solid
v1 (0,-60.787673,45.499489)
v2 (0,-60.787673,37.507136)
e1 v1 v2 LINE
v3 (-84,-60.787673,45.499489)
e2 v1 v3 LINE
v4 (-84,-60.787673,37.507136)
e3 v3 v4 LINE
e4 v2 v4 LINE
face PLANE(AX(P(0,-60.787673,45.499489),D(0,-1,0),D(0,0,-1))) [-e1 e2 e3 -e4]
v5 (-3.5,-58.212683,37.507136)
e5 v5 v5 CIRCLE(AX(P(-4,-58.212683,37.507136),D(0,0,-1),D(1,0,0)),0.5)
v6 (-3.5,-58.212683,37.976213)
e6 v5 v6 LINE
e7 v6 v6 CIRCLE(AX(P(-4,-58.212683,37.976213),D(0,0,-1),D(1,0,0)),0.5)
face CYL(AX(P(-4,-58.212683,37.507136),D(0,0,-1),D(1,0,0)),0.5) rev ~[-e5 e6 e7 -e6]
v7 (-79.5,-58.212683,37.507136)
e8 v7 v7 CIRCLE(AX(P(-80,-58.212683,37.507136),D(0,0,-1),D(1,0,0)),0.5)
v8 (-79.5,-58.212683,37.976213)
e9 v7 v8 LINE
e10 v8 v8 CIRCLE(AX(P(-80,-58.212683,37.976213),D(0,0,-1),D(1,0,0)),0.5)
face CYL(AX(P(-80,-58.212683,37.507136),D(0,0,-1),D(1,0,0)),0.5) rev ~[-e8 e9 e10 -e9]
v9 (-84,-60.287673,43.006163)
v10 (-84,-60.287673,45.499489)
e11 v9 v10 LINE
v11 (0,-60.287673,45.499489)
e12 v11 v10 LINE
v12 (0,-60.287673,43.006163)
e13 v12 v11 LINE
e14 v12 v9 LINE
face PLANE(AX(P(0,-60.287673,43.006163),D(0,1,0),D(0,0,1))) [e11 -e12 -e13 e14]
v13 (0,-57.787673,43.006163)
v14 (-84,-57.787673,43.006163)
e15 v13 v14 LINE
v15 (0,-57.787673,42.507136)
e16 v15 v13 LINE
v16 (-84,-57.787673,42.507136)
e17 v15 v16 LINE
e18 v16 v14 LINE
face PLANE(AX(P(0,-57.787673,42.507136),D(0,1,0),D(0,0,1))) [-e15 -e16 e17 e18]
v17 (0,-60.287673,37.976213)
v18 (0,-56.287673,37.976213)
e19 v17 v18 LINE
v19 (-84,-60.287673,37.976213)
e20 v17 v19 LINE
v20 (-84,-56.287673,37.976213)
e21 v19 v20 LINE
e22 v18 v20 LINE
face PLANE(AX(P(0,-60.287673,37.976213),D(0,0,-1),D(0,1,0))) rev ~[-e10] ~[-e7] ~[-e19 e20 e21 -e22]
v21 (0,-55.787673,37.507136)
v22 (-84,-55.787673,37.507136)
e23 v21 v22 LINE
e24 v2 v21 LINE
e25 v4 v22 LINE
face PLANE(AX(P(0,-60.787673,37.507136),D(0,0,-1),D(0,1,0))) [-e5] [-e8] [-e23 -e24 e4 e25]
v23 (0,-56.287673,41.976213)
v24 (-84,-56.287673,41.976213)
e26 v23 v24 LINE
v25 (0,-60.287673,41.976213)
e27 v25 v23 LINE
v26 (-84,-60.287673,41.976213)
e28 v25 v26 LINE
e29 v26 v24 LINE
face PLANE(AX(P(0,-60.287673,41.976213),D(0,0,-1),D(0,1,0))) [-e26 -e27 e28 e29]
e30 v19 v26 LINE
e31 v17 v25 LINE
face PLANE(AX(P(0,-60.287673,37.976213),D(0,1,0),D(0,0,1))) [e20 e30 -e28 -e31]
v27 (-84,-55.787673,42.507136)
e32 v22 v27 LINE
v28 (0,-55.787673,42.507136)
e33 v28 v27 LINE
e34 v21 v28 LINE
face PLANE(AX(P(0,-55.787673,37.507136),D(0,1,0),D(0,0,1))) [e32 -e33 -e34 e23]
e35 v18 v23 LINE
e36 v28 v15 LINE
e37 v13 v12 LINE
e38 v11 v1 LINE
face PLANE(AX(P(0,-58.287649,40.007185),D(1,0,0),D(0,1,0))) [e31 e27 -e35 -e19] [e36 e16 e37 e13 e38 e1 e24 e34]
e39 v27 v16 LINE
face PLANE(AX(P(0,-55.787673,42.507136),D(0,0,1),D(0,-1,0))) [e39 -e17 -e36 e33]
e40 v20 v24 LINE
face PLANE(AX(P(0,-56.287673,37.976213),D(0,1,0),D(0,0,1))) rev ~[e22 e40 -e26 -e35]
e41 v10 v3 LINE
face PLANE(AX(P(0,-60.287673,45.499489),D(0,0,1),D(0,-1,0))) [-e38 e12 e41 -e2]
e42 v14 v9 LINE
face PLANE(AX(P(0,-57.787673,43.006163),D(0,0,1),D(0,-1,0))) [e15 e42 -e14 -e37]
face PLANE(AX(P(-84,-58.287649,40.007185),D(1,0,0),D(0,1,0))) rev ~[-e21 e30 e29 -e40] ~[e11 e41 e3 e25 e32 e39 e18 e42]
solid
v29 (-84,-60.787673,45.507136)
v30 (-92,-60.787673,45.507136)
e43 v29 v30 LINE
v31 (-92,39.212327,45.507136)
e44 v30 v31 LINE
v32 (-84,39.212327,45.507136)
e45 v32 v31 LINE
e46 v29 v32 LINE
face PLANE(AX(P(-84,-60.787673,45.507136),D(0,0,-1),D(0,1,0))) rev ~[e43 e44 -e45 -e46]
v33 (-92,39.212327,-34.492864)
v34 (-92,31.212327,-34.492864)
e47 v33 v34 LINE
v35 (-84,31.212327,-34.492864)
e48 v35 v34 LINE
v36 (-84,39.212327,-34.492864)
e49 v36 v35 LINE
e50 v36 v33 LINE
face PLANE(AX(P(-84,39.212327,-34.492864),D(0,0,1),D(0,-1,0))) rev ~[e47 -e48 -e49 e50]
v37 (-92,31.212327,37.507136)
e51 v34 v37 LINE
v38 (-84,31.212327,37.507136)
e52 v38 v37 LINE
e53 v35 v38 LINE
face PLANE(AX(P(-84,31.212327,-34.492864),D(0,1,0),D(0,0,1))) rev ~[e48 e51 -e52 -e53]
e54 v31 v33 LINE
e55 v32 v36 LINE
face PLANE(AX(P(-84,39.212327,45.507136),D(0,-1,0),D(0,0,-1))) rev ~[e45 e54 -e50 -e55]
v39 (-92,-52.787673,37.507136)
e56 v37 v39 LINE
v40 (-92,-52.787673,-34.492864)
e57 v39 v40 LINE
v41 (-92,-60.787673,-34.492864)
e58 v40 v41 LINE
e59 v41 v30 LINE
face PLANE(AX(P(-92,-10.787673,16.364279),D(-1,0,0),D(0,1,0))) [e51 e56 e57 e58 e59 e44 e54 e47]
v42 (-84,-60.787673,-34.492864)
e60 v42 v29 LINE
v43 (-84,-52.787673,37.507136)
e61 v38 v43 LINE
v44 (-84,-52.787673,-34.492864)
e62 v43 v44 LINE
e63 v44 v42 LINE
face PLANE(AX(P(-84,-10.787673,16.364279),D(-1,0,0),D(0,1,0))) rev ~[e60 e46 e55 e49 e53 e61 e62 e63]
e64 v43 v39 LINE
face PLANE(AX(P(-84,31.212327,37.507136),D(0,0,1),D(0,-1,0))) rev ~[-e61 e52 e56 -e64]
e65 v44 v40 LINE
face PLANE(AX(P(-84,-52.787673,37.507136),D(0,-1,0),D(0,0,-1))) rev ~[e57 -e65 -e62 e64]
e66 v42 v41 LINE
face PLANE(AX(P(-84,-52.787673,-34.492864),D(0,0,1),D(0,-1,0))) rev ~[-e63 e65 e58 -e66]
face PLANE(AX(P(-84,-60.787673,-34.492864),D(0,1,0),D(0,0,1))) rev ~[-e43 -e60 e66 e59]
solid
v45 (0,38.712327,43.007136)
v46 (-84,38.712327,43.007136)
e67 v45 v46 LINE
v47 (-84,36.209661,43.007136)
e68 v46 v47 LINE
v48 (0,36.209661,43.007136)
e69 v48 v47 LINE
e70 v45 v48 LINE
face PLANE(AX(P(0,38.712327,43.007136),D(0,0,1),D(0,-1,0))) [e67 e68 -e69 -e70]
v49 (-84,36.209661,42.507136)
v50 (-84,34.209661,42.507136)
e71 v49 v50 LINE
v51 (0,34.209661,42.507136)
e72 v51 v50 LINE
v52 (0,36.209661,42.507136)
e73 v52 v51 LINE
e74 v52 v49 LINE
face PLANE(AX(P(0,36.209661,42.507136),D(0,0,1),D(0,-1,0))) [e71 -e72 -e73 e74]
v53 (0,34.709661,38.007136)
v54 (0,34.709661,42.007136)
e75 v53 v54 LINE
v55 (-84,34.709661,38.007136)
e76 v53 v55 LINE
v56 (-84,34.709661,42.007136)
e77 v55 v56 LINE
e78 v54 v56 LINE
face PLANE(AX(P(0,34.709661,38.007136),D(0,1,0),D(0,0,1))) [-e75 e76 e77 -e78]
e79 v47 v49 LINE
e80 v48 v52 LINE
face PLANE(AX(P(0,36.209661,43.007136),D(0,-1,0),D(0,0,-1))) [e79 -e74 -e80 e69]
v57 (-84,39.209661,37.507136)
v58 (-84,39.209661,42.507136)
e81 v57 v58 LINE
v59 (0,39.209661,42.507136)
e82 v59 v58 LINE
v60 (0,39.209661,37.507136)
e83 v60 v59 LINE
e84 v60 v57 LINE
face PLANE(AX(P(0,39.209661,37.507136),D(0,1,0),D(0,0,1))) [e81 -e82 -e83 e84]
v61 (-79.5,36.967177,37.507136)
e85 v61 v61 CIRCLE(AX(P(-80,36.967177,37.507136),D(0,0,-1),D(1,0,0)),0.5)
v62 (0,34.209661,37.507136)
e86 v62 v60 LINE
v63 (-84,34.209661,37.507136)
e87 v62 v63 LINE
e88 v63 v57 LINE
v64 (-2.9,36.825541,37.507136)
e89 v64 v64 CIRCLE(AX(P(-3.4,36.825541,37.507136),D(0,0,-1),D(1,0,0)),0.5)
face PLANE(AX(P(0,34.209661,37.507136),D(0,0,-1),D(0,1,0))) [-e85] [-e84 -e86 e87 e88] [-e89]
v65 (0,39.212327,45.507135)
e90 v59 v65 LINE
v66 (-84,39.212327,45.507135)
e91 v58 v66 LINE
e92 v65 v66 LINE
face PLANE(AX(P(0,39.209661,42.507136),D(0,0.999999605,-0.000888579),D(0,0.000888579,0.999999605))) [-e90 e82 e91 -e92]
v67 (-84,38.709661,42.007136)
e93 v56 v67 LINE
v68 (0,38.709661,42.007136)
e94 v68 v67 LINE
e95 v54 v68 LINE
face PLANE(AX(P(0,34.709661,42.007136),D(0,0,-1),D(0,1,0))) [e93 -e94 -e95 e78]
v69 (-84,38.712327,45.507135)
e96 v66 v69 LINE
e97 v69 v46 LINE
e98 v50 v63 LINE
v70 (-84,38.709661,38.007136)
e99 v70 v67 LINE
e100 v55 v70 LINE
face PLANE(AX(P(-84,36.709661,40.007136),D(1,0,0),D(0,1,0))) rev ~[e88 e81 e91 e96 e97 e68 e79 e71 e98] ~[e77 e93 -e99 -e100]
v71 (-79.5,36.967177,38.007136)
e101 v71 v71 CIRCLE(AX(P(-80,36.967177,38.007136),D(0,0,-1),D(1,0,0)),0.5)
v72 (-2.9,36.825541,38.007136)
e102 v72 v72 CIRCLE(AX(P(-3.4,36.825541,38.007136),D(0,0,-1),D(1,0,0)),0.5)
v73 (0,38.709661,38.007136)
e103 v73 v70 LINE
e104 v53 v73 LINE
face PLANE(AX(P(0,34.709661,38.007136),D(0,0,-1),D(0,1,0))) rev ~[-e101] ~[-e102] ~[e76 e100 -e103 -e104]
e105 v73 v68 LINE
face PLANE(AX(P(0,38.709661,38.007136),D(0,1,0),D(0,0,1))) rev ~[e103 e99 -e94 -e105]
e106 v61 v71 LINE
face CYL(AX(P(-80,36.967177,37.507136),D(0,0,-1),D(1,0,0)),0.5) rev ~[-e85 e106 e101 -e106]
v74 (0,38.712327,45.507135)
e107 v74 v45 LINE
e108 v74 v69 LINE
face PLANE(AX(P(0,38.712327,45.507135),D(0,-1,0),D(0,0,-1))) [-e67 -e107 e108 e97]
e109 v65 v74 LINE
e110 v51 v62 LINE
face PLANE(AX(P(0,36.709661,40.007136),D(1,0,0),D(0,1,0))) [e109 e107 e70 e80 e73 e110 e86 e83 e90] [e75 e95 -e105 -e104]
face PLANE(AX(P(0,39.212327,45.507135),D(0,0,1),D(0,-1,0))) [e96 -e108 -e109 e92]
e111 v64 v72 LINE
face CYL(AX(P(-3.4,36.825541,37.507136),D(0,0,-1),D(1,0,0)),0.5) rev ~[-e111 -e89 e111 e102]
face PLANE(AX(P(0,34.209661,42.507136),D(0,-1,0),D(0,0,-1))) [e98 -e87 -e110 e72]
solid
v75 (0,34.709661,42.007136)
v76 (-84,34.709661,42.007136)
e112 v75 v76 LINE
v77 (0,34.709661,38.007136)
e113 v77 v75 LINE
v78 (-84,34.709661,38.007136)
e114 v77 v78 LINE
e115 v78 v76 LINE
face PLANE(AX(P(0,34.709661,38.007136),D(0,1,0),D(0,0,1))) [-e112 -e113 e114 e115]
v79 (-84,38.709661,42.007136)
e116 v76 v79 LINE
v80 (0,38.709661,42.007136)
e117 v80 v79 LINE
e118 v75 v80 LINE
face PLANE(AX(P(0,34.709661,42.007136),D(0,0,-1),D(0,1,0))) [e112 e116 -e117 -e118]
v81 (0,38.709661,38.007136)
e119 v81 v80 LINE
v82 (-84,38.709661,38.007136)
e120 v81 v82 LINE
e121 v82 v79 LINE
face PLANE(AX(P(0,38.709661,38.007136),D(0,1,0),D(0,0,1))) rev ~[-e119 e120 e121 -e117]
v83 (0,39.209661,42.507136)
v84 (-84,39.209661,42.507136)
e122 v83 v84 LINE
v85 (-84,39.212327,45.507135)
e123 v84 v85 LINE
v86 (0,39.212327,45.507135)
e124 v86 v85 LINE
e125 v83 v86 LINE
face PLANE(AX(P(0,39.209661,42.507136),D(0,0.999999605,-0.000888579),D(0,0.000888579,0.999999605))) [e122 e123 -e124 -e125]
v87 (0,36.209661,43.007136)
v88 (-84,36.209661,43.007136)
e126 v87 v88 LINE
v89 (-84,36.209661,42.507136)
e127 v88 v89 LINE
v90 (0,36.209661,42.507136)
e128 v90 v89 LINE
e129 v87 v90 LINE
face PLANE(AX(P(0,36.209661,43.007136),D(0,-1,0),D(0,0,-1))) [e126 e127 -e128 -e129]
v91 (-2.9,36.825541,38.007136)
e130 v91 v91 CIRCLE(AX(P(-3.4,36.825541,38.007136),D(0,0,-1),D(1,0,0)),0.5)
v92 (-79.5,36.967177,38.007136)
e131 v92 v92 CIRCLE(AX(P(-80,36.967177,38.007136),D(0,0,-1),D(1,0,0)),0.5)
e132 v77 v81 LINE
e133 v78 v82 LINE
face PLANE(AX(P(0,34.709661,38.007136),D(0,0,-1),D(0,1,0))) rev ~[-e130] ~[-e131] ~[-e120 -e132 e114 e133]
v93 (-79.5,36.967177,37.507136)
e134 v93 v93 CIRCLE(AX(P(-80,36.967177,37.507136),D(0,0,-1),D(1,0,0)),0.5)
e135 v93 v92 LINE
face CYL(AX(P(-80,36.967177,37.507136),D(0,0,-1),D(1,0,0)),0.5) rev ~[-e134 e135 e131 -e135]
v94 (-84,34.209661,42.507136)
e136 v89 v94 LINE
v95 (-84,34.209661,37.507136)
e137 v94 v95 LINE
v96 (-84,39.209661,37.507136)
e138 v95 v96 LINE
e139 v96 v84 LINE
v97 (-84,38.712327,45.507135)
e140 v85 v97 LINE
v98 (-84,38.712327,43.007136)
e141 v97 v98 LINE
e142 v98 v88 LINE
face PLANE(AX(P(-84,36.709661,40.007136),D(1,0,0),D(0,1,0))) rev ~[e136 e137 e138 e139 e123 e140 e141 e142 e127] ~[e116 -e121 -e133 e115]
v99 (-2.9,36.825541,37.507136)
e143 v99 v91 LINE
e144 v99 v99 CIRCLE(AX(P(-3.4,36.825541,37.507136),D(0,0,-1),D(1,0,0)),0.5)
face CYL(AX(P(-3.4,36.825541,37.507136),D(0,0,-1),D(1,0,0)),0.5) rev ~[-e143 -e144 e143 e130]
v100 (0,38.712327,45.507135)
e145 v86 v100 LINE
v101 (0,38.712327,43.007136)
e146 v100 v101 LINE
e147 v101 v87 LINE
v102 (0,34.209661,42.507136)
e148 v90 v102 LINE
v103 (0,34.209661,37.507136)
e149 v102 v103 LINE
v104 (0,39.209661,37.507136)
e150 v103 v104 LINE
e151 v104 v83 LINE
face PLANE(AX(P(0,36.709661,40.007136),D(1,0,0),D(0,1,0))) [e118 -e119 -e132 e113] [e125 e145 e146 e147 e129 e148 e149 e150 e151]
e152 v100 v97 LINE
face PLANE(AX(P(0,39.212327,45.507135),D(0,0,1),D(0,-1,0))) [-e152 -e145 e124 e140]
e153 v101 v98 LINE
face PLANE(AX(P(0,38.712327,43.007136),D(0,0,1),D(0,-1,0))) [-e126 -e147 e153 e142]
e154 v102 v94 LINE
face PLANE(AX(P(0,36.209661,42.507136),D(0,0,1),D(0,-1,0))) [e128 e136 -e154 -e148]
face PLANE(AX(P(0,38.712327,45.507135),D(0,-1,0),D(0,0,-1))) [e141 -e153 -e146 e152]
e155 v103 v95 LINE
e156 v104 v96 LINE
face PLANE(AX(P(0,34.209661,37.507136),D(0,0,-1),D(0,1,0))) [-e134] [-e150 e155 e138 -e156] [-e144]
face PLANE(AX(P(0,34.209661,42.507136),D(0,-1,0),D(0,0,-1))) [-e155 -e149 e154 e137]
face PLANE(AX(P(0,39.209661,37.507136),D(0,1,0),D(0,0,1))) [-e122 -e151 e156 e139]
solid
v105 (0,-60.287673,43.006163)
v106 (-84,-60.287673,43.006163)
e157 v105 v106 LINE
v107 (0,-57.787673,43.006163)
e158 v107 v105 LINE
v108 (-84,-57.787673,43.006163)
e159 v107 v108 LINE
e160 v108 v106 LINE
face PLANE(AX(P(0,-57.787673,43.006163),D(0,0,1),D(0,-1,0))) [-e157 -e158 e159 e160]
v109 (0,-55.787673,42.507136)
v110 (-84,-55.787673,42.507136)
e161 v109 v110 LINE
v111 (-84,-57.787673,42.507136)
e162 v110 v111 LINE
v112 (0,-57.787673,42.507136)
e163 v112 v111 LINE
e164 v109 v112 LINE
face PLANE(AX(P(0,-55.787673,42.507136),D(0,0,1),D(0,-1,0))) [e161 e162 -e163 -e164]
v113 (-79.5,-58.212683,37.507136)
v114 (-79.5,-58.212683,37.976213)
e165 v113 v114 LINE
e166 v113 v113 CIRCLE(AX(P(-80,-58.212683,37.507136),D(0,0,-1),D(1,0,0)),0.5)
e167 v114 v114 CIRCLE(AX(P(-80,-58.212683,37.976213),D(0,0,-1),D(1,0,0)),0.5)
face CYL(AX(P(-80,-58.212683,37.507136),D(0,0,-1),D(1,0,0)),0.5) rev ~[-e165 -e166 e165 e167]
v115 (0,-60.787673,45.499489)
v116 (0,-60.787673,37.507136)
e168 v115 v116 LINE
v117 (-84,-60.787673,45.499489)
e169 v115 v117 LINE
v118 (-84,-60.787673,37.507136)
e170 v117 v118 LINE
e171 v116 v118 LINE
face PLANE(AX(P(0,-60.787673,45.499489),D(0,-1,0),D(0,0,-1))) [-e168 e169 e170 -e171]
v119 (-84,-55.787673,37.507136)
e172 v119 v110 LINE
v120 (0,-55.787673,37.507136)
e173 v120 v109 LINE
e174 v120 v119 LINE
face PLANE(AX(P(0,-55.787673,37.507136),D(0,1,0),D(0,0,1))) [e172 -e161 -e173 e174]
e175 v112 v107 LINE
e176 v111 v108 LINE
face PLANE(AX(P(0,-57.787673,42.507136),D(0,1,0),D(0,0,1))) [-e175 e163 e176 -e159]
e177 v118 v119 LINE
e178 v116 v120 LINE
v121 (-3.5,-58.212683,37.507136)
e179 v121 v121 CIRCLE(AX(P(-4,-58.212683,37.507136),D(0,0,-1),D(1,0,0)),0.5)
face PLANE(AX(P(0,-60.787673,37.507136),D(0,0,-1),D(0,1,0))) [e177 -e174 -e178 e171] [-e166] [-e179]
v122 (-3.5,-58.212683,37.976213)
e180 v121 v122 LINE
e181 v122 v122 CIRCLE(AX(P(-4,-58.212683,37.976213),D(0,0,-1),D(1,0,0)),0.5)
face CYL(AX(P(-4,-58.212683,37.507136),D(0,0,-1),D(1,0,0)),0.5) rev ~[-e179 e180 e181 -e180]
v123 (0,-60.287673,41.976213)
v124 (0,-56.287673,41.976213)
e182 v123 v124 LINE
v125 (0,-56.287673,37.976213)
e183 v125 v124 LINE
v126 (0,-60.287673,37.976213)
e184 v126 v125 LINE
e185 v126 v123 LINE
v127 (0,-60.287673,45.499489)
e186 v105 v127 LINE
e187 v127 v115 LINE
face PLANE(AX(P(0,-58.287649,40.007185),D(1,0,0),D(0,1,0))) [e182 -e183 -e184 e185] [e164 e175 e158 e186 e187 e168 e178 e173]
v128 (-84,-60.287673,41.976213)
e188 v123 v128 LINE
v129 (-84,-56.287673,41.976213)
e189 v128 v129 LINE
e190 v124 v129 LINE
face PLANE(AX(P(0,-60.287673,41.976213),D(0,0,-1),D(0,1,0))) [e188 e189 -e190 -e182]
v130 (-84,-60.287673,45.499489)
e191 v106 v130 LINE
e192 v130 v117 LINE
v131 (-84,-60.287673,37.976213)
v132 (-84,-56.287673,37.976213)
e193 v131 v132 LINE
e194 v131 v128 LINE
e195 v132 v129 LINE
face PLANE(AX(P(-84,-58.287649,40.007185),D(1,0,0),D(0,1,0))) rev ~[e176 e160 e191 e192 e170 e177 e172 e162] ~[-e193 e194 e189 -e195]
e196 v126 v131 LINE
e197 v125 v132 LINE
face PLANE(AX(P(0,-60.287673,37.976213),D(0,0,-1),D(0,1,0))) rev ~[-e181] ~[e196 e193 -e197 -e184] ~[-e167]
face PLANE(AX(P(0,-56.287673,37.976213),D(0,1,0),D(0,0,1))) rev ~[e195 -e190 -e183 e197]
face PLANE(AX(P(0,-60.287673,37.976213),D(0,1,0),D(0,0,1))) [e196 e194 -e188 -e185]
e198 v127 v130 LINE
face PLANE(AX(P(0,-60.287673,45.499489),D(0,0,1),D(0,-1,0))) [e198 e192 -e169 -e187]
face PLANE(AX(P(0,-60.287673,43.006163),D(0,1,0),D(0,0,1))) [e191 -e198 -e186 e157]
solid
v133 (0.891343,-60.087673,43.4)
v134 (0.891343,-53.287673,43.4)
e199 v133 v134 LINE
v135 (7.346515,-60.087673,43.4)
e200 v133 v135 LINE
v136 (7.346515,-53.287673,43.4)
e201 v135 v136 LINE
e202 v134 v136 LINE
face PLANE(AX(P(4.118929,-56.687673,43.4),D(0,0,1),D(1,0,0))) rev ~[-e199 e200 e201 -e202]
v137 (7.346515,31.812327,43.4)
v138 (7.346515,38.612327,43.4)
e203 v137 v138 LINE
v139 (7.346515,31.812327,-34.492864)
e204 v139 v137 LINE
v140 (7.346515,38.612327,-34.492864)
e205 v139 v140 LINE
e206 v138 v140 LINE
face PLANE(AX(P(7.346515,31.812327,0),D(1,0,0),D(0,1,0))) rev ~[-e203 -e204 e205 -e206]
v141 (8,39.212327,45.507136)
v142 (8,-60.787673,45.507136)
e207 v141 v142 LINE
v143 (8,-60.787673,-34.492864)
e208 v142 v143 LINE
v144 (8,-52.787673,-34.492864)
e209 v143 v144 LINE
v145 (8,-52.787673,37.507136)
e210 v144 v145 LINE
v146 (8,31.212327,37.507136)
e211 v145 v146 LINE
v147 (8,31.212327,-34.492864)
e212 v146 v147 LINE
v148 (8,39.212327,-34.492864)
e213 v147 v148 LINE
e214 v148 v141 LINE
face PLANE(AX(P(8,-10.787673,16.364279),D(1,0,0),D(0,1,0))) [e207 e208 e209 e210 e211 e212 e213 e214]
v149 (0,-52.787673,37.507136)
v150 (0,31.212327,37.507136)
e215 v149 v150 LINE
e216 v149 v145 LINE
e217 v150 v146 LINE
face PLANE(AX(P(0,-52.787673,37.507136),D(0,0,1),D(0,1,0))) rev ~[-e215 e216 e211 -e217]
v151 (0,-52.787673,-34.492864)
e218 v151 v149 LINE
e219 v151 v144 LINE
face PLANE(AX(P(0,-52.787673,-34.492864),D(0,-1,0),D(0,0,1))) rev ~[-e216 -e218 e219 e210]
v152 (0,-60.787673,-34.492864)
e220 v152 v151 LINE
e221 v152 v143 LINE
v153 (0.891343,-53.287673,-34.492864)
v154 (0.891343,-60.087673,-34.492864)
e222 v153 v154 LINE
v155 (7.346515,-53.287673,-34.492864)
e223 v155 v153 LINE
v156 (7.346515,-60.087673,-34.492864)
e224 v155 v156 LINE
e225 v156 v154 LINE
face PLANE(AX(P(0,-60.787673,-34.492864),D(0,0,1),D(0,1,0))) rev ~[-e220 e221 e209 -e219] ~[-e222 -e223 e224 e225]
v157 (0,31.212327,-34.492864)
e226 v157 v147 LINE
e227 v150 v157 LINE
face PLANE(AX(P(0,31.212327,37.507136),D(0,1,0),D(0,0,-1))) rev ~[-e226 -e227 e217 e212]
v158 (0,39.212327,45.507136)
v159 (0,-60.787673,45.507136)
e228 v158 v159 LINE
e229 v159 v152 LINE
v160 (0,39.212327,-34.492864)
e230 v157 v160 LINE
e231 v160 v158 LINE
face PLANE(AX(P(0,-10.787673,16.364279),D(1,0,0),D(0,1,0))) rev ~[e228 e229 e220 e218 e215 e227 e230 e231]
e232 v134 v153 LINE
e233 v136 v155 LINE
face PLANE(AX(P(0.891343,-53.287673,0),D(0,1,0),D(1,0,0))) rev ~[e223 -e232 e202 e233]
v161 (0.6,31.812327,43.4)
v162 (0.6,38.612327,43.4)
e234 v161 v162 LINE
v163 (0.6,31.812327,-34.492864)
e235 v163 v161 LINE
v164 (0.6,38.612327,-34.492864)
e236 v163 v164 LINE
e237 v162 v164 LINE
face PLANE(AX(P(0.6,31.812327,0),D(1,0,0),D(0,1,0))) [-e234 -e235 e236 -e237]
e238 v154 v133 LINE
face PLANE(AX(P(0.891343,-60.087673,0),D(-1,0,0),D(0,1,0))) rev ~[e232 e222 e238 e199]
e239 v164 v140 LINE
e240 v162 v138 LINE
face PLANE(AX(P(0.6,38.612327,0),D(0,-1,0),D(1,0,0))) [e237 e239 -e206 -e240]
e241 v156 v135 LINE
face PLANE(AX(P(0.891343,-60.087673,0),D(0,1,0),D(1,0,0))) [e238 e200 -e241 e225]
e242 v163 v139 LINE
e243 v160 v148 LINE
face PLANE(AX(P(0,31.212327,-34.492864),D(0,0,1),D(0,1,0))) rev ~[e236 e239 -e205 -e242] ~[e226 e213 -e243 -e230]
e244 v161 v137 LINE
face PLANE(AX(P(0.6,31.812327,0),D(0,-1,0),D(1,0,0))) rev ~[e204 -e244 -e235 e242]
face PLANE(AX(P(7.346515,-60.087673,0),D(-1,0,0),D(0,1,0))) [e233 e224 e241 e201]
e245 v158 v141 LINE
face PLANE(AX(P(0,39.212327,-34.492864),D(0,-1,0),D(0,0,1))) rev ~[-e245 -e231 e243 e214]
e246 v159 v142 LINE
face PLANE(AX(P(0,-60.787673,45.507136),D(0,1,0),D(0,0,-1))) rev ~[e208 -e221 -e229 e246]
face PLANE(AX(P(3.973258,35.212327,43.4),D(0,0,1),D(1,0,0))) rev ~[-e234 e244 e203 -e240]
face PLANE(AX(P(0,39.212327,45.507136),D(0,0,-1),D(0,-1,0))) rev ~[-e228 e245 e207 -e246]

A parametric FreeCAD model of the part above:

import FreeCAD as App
import Part
import Sketcher
Q = App.Units.Quantity

doc = App.newDocument("Part")
params = doc.addObject("Spreadsheet::Sheet", "Params")
for row, (alias, value) in enumerate([
    ("sketch1_width", "8 mm"),
    ("sketch1_width2", "84 mm"),
    ("sketch1_height", "80 mm"),
    ("sketch1_height2", "72 mm"),
    ("pad1_length", "8 mm"),
    ("sketch2_height", "6.8 mm"),
    ("pocket1_length", "86.8 mm"),
    ("sketch3_width", "2 mm"),
    ("sketch3_width2", "5 mm"),
    ("sketch3_width3", "4 mm"),
    ("sketch3_length", "3 mm"),
    ("sketch3_width4", "0.5 mm"),
    ("pad2_length", "84 mm"),
    ("sketch4_width", "2 mm"),
    ("sketch4_width2", "5 mm"),
    ("sketch4_width3", "4 mm"),
    ("sketch4_width4", "2.5 mm"),
    ("pad3_length", "84 mm"),
    ("sketch5_width", "2 mm"),
    ("sketch5_width2", "5 mm"),
    ("sketch5_width3", "4 mm"),
    ("sketch5_length", "3 mm"),
    ("sketch5_width4", "0.5 mm"),
    ("pad4_length", "84 mm"),
    ("sketch6_width", "2 mm"),
    ("sketch6_width2", "5 mm"),
    ("sketch6_width3", "4 mm"),
    ("sketch6_width4", "2.5 mm"),
    ("pad5_length", "84 mm"),
    ("sketch7_width", "100 mm"),
    ("sketch7_width2", "8 mm"),
    ("sketch7_height", "80 mm"),
    ("sketch7_height2", "72 mm"),
    ("pad6_length", "8 mm"),
    ("sketch8_diameter", "1 mm"),
    ("pad7_length", "4.1 mm"),
], start=1):
    params.set(f"A{row}", alias)
    params.set(f"B{row}", "=" + value)
    params.setAlias(f"B{row}", alias)

body = doc.addObject("PartDesign::Body", "Body")

# Sketch on YZ plane
sketch1 = body.newObject("Sketcher::SketchObject", "Sketch")
sketch1.AttachmentSupport = (doc.getObject("YZ_Plane"), [""])
sketch1.MapMode = "FlatFace"
sketch1.addGeometry([
    Part.LineSegment(App.Vector(-61, 46, 0), App.Vector(-61, -34, 0)),  # 0
    Part.LineSegment(App.Vector(-61, -34, 0), App.Vector(-53, -34, 0)),  # 1
    Part.LineSegment(App.Vector(-53, -34, 0), App.Vector(-53, 38, 0)),  # 2
    Part.LineSegment(App.Vector(-53, 38, 0), App.Vector(31, 38, 0)),  # 3
    Part.LineSegment(App.Vector(31, 38, 0), App.Vector(31, -34, 0)),  # 4
    Part.LineSegment(App.Vector(31, -34, 0), App.Vector(39, -34, 0)),  # 5
    Part.LineSegment(App.Vector(39, -34, 0), App.Vector(39, 46, 0)),  # 6
    Part.LineSegment(App.Vector(39, 46, 0), App.Vector(-61, 46, 0)),  # 7
], False)
sketch1.addConstraint([
    Sketcher.Constraint("Coincident", 0, 2, 1, 1),
    Sketcher.Constraint("Coincident", 1, 2, 2, 1),
    Sketcher.Constraint("Coincident", 2, 2, 3, 1),
    Sketcher.Constraint("Coincident", 3, 2, 4, 1),
    Sketcher.Constraint("Coincident", 4, 2, 5, 1),
    Sketcher.Constraint("Coincident", 5, 2, 6, 1),
    Sketcher.Constraint("Coincident", 6, 2, 7, 1),
    Sketcher.Constraint("Coincident", 7, 2, 0, 1),
    Sketcher.Constraint("Vertical", 0),
    Sketcher.Constraint("Horizontal", 1),
    Sketcher.Constraint("Vertical", 2),
    Sketcher.Constraint("Horizontal", 3),
    Sketcher.Constraint("Vertical", 4),
    Sketcher.Constraint("Horizontal", 5),
    Sketcher.Constraint("Vertical", 6),
    Sketcher.Constraint("Horizontal", 7),
    Sketcher.Constraint("Horizontal", 1, 2, 4, 2),
    Sketcher.Constraint("Equal", 1, 5),
    Sketcher.Constraint("DistanceX", 1, 1, 1, 2, Q("8 mm")),
    Sketcher.Constraint("DistanceX", 3, 1, 3, 2, Q("84 mm")),
    Sketcher.Constraint("DistanceY", 0, 2, 0, 1, Q("80 mm")),
    Sketcher.Constraint("DistanceY", 2, 1, 2, 2, Q("72 mm")),
    Sketcher.Constraint("DistanceX", 0, 2, -1, 1, Q("60.787673 mm")),
    Sketcher.Constraint("DistanceY", 0, 2, -1, 1, Q("34.492864 mm")),
])
sketch1.setExpression("Constraints[18]", "Params.sketch1_width")
sketch1.setExpression("Constraints[19]", "Params.sketch1_width2")
sketch1.setExpression("Constraints[20]", "Params.sketch1_height")
sketch1.setExpression("Constraints[21]", "Params.sketch1_height2")
pad1 = body.newObject("PartDesign::Pad", "Pad")
pad1.Profile = sketch1
pad1.setExpression("Length", "Params.pad1_length")

# Sketch on XY plane
sketch2 = body.newObject("Sketcher::SketchObject", "Sketch001")
sketch2.AttachmentSupport = (doc.getObject("XY_Plane"), [""])
sketch2.MapMode = "FlatFace"
sketch2.addGeometry([
    Part.LineSegment(App.Vector(1, -53, 0), App.Vector(1, -60, 0)),  # 0
    Part.LineSegment(App.Vector(1, -60, 0), App.Vector(7, -60, 0)),  # 1
    Part.LineSegment(App.Vector(7, -60, 0), App.Vector(7, -53, 0)),  # 2
    Part.LineSegment(App.Vector(7, -53, 0), App.Vector(1, -53, 0)),  # 3
    Part.LineSegment(App.Vector(1, 39, 0), App.Vector(1, 32, 0)),  # 4
    Part.LineSegment(App.Vector(1, 32, 0), App.Vector(7, 32, 0)),  # 5
    Part.LineSegment(App.Vector(7, 32, 0), App.Vector(7, 39, 0)),  # 6
    Part.LineSegment(App.Vector(7, 39, 0), App.Vector(1, 39, 0)),  # 7
], False)
sketch2.addConstraint([
    Sketcher.Constraint("Coincident", 0, 2, 1, 1),
    Sketcher.Constraint("Coincident", 1, 2, 2, 1),
    Sketcher.Constraint("Coincident", 2, 2, 3, 1),
    Sketcher.Constraint("Coincident", 3, 2, 0, 1),
    Sketcher.Constraint("Coincident", 4, 2, 5, 1),
    Sketcher.Constraint("Coincident", 5, 2, 6, 1),
    Sketcher.Constraint("Coincident", 6, 2, 7, 1),
    Sketcher.Constraint("Coincident", 7, 2, 4, 1),
    Sketcher.Constraint("Vertical", 0),
    Sketcher.Constraint("Horizontal", 1),
    Sketcher.Constraint("Vertical", 2),
    Sketcher.Constraint("Horizontal", 3),
    Sketcher.Constraint("Vertical", 4),
    Sketcher.Constraint("Horizontal", 5),
    Sketcher.Constraint("Vertical", 6),
    Sketcher.Constraint("Horizontal", 7),
    Sketcher.Constraint("Vertical", 2, 2, 5, 2),
    Sketcher.Constraint("Equal", 2, 4),
    Sketcher.Constraint("DistanceY", 0, 2, 0, 1, Q("6.8 mm")),
    Sketcher.Constraint("DistanceX", -1, 1, 4, 2, Q("0.6 mm")),
    Sketcher.Constraint("DistanceY", 3, 2, 4, 2, Q("85.1 mm")),
    Sketcher.Constraint("DistanceX", 1, 1, 1, 2, Q("6.455172 mm")),
    Sketcher.Constraint("DistanceX", 5, 1, 5, 2, Q("6.746515 mm")),
    Sketcher.Constraint("DistanceY", 0, 2, -1, 1, Q("60.087673 mm")),
])
sketch2.setExpression("Constraints[18]", "Params.sketch2_height")
pocket1 = body.newObject("PartDesign::Pocket", "Pocket")
pocket1.Profile = sketch2
pocket1.setExpression("Length", "Params.pocket1_length")
pocket1.Midplane = True
body2 = doc.addObject("PartDesign::Body", "Body001")

# Sketch on YZ plane
sketch3 = body2.newObject("Sketcher::SketchObject", "Sketch002")
sketch3.AttachmentSupport = (doc.getObject("YZ_Plane001"), [""])
sketch3.MapMode = "FlatFace"
sketch3.addGeometry([
    Part.LineSegment(App.Vector(39.2, 37.5, 0), App.Vector(39.2, 42.5, 0)),  # 0
    Part.LineSegment(App.Vector(39.2, 42.5, 0), App.Vector(39.2, 45.5, 0)),  # 1
    Part.LineSegment(App.Vector(39.2, 45.5, 0), App.Vector(38.7, 45.5, 0)),  # 2
    Part.LineSegment(App.Vector(38.7, 45.5, 0), App.Vector(38.7, 43, 0)),  # 3
    Part.LineSegment(App.Vector(38.7, 43, 0), App.Vector(36.2, 43, 0)),  # 4
    Part.LineSegment(App.Vector(36.2, 43, 0), App.Vector(36.2, 42.5, 0)),  # 5
    Part.LineSegment(App.Vector(36.2, 42.5, 0), App.Vector(34.2, 42.5, 0)),  # 6
    Part.LineSegment(App.Vector(34.2, 42.5, 0), App.Vector(34.2, 37.5, 0)),  # 7
    Part.LineSegment(App.Vector(34.2, 37.5, 0), App.Vector(39.2, 37.5, 0)),  # 8
    Part.LineSegment(App.Vector(38.7, 38, 0), App.Vector(34.7, 38, 0)),  # 9
    Part.LineSegment(App.Vector(34.7, 38, 0), App.Vector(34.7, 42, 0)),  # 10
    Part.LineSegment(App.Vector(34.7, 42, 0), App.Vector(38.7, 42, 0)),  # 11
    Part.LineSegment(App.Vector(38.7, 42, 0), App.Vector(38.7, 38, 0)),  # 12
], False)
sketch3.addConstraint([
    Sketcher.Constraint("Coincident", 0, 2, 1, 1),
    Sketcher.Constraint("Coincident", 1, 2, 2, 1),
    Sketcher.Constraint("Coincident", 2, 2, 3, 1),
    Sketcher.Constraint("Coincident", 3, 2, 4, 1),
    Sketcher.Constraint("Coincident", 4, 2, 5, 1),
    Sketcher.Constraint("Coincident", 5, 2, 6, 1),
    Sketcher.Constraint("Coincident", 6, 2, 7, 1),
    Sketcher.Constraint("Coincident", 7, 2, 8, 1),
    Sketcher.Constraint("Coincident", 8, 2, 0, 1),
    Sketcher.Constraint("Coincident", 9, 2, 10, 1),
    Sketcher.Constraint("Coincident", 10, 2, 11, 1),
    Sketcher.Constraint("Coincident", 11, 2, 12, 1),
    Sketcher.Constraint("Coincident", 12, 2, 9, 1),
    Sketcher.Constraint("Vertical", 0),
    Sketcher.Constraint("Horizontal", 2),
    Sketcher.Constraint("Vertical", 3),
    Sketcher.Constraint("Horizontal", 4),
    Sketcher.Constraint("Vertical", 5),
    Sketcher.Constraint("Horizontal", 6),
    Sketcher.Constraint("Vertical", 7),
    Sketcher.Constraint("Horizontal", 8),
    Sketcher.Constraint("Horizontal", 9),
    Sketcher.Constraint("Vertical", 10),
    Sketcher.Constraint("Horizontal", 11),
    Sketcher.Constraint("Vertical", 12),
    Sketcher.Constraint("Horizontal", 0, 2, 5, 2),
    Sketcher.Constraint("Equal", 8, 0),
    Sketcher.Constraint("Equal", 2, 5),
    Sketcher.Constraint("Equal", 11, 10),
    Sketcher.Constraint("DistanceX", 6, 2, 6, 1, Q("2 mm")),
    Sketcher.Constraint("DistanceX", 8, 1, 8, 2, Q("5 mm")),
    Sketcher.Constraint("DistanceX", 9, 2, 9, 1, Q("4 mm")),
    Sketcher.Constraint("Distance", 1, Q("3 mm")),
    Sketcher.Constraint("DistanceX", 2, 2, 2, 1, Q("0.5 mm")),
    Sketcher.Constraint("DistanceY", 9, 2, 4, 2, Q("5 mm")),
    Sketcher.Constraint("DistanceX", 7, 2, 9, 2, Q("0.5 mm")),
    Sketcher.Constraint("DistanceX", 4, 2, 4, 1, Q("2.502666 mm")),
    Sketcher.Constraint("DistanceX", -1, 1, 0, 2, Q("39.209661 mm")),
    Sketcher.Constraint("DistanceY", -1, 1, 0, 2, Q("42.507136 mm")),
])
sketch3.setExpression("Constraints[29]", "Params.sketch3_width")
sketch3.setExpression("Constraints[30]", "Params.sketch3_width2")
sketch3.setExpression("Constraints[31]", "Params.sketch3_width3")
sketch3.setExpression("Constraints[32]", "Params.sketch3_length")
sketch3.setExpression("Constraints[33]", "Params.sketch3_width4")
pad2 = body2.newObject("PartDesign::Pad", "Pad001")
pad2.Profile = sketch3
pad2.setExpression("Length", "Params.pad2_length")
pad2.Reversed = True
body3 = doc.addObject("PartDesign::Body", "Body002")

# Sketch on YZ plane
sketch4 = body3.newObject("Sketcher::SketchObject", "Sketch003")
sketch4.AttachmentSupport = (doc.getObject("YZ_Plane002"), [""])
sketch4.MapMode = "FlatFace"
sketch4.addGeometry([
    Part.LineSegment(App.Vector(-55.79, 37.51, 0), App.Vector(-55.79, 42.51, 0)),  # 0
    Part.LineSegment(App.Vector(-55.79, 42.51, 0), App.Vector(-57.79, 42.51, 0)),  # 1
    Part.LineSegment(App.Vector(-57.79, 42.51, 0), App.Vector(-57.79, 43.01, 0)),  # 2
    Part.LineSegment(App.Vector(-57.79, 43.01, 0), App.Vector(-60.29, 43.01, 0)),  # 3
    Part.LineSegment(App.Vector(-60.29, 43.01, 0), App.Vector(-60.29, 45.5, 0)),  # 4
    Part.LineSegment(App.Vector(-60.29, 45.5, 0), App.Vector(-60.79, 45.5, 0)),  # 5
    Part.LineSegment(App.Vector(-60.79, 45.5, 0), App.Vector(-60.79, 37.51, 0)),  # 6
    Part.LineSegment(App.Vector(-60.79, 37.51, 0), App.Vector(-55.79, 37.51, 0)),  # 7
    Part.LineSegment(App.Vector(-56.29, 37.98, 0), App.Vector(-60.29, 37.98, 0)),  # 8
    Part.LineSegment(App.Vector(-60.29, 37.98, 0), App.Vector(-60.29, 41.98, 0)),  # 9
    Part.LineSegment(App.Vector(-60.29, 41.98, 0), App.Vector(-56.29, 41.98, 0)),  # 10
    Part.LineSegment(App.Vector(-56.29, 41.98, 0), App.Vector(-56.29, 37.98, 0)),  # 11
], False)
sketch4.addConstraint([
    Sketcher.Constraint("Coincident", 0, 2, 1, 1),
    Sketcher.Constraint("Coincident", 1, 2, 2, 1),
    Sketcher.Constraint("Coincident", 2, 2, 3, 1),
    Sketcher.Constraint("Coincident", 3, 2, 4, 1),
    Sketcher.Constraint("Coincident", 4, 2, 5, 1),
    Sketcher.Constraint("Coincident", 5, 2, 6, 1),
    Sketcher.Constraint("Coincident", 6, 2, 7, 1),
    Sketcher.Constraint("Coincident", 7, 2, 0, 1),
    Sketcher.Constraint("Coincident", 8, 2, 9, 1),
    Sketcher.Constraint("Coincident", 9, 2, 10, 1),
    Sketcher.Constraint("Coincident", 10, 2, 11, 1),
    Sketcher.Constraint("Coincident", 11, 2, 8, 1),
    Sketcher.Constraint("Vertical", 0),
    Sketcher.Constraint("Horizontal", 1),
    Sketcher.Constraint("Vertical", 2),
    Sketcher.Constraint("Horizontal", 3),
    Sketcher.Constraint("Vertical", 4),
    Sketcher.Constraint("Horizontal", 5),
    Sketcher.Constraint("Vertical", 6),
    Sketcher.Constraint("Horizontal", 7),
    Sketcher.Constraint("Horizontal", 8),
    Sketcher.Constraint("Vertical", 9),
    Sketcher.Constraint("Horizontal", 10),
    Sketcher.Constraint("Vertical", 11),
    Sketcher.Constraint("Vertical", 4, 2, 8, 2),
    Sketcher.Constraint("Equal", 7, 0),
    Sketcher.Constraint("Equal", 10, 9),
    Sketcher.Constraint("DistanceX", 1, 2, 1, 1, Q("2 mm")),
    Sketcher.Constraint("DistanceX", 7, 1, 7, 2, Q("5 mm")),
    Sketcher.Constraint("DistanceX", 8, 2, 8, 1, Q("4 mm")),
    Sketcher.Constraint("DistanceX", 3, 2, 3, 1, Q("2.5 mm")),
    Sketcher.Constraint("DistanceY", 2, 1, 2, 2, Q("0.499027 mm")),
    Sketcher.Constraint("DistanceY", 4, 1, 4, 2, Q("2.493325 mm")),
    Sketcher.Constraint("DistanceY", -1, 1, 4, 2, Q("45.499489 mm")),
    Sketcher.Constraint("DistanceY", 8, 2, 3, 2, Q("5.02995 mm")),
    Sketcher.Constraint("DistanceX", 0, 2, -1, 1, Q("55.787673 mm")),
])
sketch4.setExpression("Constraints[27]", "Params.sketch4_width")
sketch4.setExpression("Constraints[28]", "Params.sketch4_width2")
sketch4.setExpression("Constraints[29]", "Params.sketch4_width3")
sketch4.setExpression("Constraints[30]", "Params.sketch4_width4")
pad3 = body3.newObject("PartDesign::Pad", "Pad002")
pad3.Profile = sketch4
pad3.setExpression("Length", "Params.pad3_length")
pad3.Reversed = True
body4 = doc.addObject("PartDesign::Body", "Body003")

# Sketch on YZ plane
sketch5 = body4.newObject("Sketcher::SketchObject", "Sketch004")
sketch5.AttachmentSupport = (doc.getObject("YZ_Plane003"), [""])
sketch5.MapMode = "FlatFace"
sketch5.addGeometry([
    Part.LineSegment(App.Vector(39.2, 37.5, 0), App.Vector(39.2, 42.5, 0)),  # 0
    Part.LineSegment(App.Vector(39.2, 42.5, 0), App.Vector(39.2, 45.5, 0)),  # 1
    Part.LineSegment(App.Vector(39.2, 45.5, 0), App.Vector(38.7, 45.5, 0)),  # 2
    Part.LineSegment(App.Vector(38.7, 45.5, 0), App.Vector(38.7, 43, 0)),  # 3
    Part.LineSegment(App.Vector(38.7, 43, 0), App.Vector(36.2, 43, 0)),  # 4
    Part.LineSegment(App.Vector(36.2, 43, 0), App.Vector(36.2, 42.5, 0)),  # 5
    Part.LineSegment(App.Vector(36.2, 42.5, 0), App.Vector(34.2, 42.5, 0)),  # 6
    Part.LineSegment(App.Vector(34.2, 42.5, 0), App.Vector(34.2, 37.5, 0)),  # 7
    Part.LineSegment(App.Vector(34.2, 37.5, 0), App.Vector(39.2, 37.5, 0)),  # 8
    Part.LineSegment(App.Vector(38.7, 38, 0), App.Vector(34.7, 38, 0)),  # 9
    Part.LineSegment(App.Vector(34.7, 38, 0), App.Vector(34.7, 42, 0)),  # 10
    Part.LineSegment(App.Vector(34.7, 42, 0), App.Vector(38.7, 42, 0)),  # 11
    Part.LineSegment(App.Vector(38.7, 42, 0), App.Vector(38.7, 38, 0)),  # 12
], False)
sketch5.addConstraint([
    Sketcher.Constraint("Coincident", 0, 2, 1, 1),
    Sketcher.Constraint("Coincident", 1, 2, 2, 1),
    Sketcher.Constraint("Coincident", 2, 2, 3, 1),
    Sketcher.Constraint("Coincident", 3, 2, 4, 1),
    Sketcher.Constraint("Coincident", 4, 2, 5, 1),
    Sketcher.Constraint("Coincident", 5, 2, 6, 1),
    Sketcher.Constraint("Coincident", 6, 2, 7, 1),
    Sketcher.Constraint("Coincident", 7, 2, 8, 1),
    Sketcher.Constraint("Coincident", 8, 2, 0, 1),
    Sketcher.Constraint("Coincident", 9, 2, 10, 1),
    Sketcher.Constraint("Coincident", 10, 2, 11, 1),
    Sketcher.Constraint("Coincident", 11, 2, 12, 1),
    Sketcher.Constraint("Coincident", 12, 2, 9, 1),
    Sketcher.Constraint("Vertical", 0),
    Sketcher.Constraint("Horizontal", 2),
    Sketcher.Constraint("Vertical", 3),
    Sketcher.Constraint("Horizontal", 4),
    Sketcher.Constraint("Vertical", 5),
    Sketcher.Constraint("Horizontal", 6),
    Sketcher.Constraint("Vertical", 7),
    Sketcher.Constraint("Horizontal", 8),
    Sketcher.Constraint("Horizontal", 9),
    Sketcher.Constraint("Vertical", 10),
    Sketcher.Constraint("Horizontal", 11),
    Sketcher.Constraint("Vertical", 12),
    Sketcher.Constraint("Horizontal", 0, 2, 5, 2),
    Sketcher.Constraint("Equal", 8, 0),
    Sketcher.Constraint("Equal", 2, 5),
    Sketcher.Constraint("Equal", 11, 10),
    Sketcher.Constraint("DistanceX", 6, 2, 6, 1, Q("2 mm")),
    Sketcher.Constraint("DistanceX", 8, 1, 8, 2, Q("5 mm")),
    Sketcher.Constraint("DistanceX", 9, 2, 9, 1, Q("4 mm")),
    Sketcher.Constraint("Distance", 1, Q("3 mm")),
    Sketcher.Constraint("DistanceX", 2, 2, 2, 1, Q("0.5 mm")),
    Sketcher.Constraint("DistanceY", 9, 2, 4, 2, Q("5 mm")),
    Sketcher.Constraint("DistanceX", 7, 2, 9, 2, Q("0.5 mm")),
    Sketcher.Constraint("DistanceX", 4, 2, 4, 1, Q("2.502666 mm")),
    Sketcher.Constraint("DistanceX", -1, 1, 0, 2, Q("39.209661 mm")),
    Sketcher.Constraint("DistanceY", -1, 1, 0, 2, Q("42.507136 mm")),
])
sketch5.setExpression("Constraints[29]", "Params.sketch5_width")
sketch5.setExpression("Constraints[30]", "Params.sketch5_width2")
sketch5.setExpression("Constraints[31]", "Params.sketch5_width3")
sketch5.setExpression("Constraints[32]", "Params.sketch5_length")
sketch5.setExpression("Constraints[33]", "Params.sketch5_width4")
pad4 = body4.newObject("PartDesign::Pad", "Pad003")
pad4.Profile = sketch5
pad4.setExpression("Length", "Params.pad4_length")
pad4.Reversed = True
body5 = doc.addObject("PartDesign::Body", "Body004")

# Sketch on YZ plane
sketch6 = body5.newObject("Sketcher::SketchObject", "Sketch005")
sketch6.AttachmentSupport = (doc.getObject("YZ_Plane004"), [""])
sketch6.MapMode = "FlatFace"
sketch6.addGeometry([
    Part.LineSegment(App.Vector(-55.79, 37.51, 0), App.Vector(-55.79, 42.51, 0)),  # 0
    Part.LineSegment(App.Vector(-55.79, 42.51, 0), App.Vector(-57.79, 42.51, 0)),  # 1
    Part.LineSegment(App.Vector(-57.79, 42.51, 0), App.Vector(-57.79, 43.01, 0)),  # 2
    Part.LineSegment(App.Vector(-57.79, 43.01, 0), App.Vector(-60.29, 43.01, 0)),  # 3
    Part.LineSegment(App.Vector(-60.29, 43.01, 0), App.Vector(-60.29, 45.5, 0)),  # 4
    Part.LineSegment(App.Vector(-60.29, 45.5, 0), App.Vector(-60.79, 45.5, 0)),  # 5
    Part.LineSegment(App.Vector(-60.79, 45.5, 0), App.Vector(-60.79, 37.51, 0)),  # 6
    Part.LineSegment(App.Vector(-60.79, 37.51, 0), App.Vector(-55.79, 37.51, 0)),  # 7
    Part.LineSegment(App.Vector(-56.29, 37.98, 0), App.Vector(-60.29, 37.98, 0)),  # 8
    Part.LineSegment(App.Vector(-60.29, 37.98, 0), App.Vector(-60.29, 41.98, 0)),  # 9
    Part.LineSegment(App.Vector(-60.29, 41.98, 0), App.Vector(-56.29, 41.98, 0)),  # 10
    Part.LineSegment(App.Vector(-56.29, 41.98, 0), App.Vector(-56.29, 37.98, 0)),  # 11
], False)
sketch6.addConstraint([
    Sketcher.Constraint("Coincident", 0, 2, 1, 1),
    Sketcher.Constraint("Coincident", 1, 2, 2, 1),
    Sketcher.Constraint("Coincident", 2, 2, 3, 1),
    Sketcher.Constraint("Coincident", 3, 2, 4, 1),
    Sketcher.Constraint("Coincident", 4, 2, 5, 1),
    Sketcher.Constraint("Coincident", 5, 2, 6, 1),
    Sketcher.Constraint("Coincident", 6, 2, 7, 1),
    Sketcher.Constraint("Coincident", 7, 2, 0, 1),
    Sketcher.Constraint("Coincident", 8, 2, 9, 1),
    Sketcher.Constraint("Coincident", 9, 2, 10, 1),
    Sketcher.Constraint("Coincident", 10, 2, 11, 1),
    Sketcher.Constraint("Coincident", 11, 2, 8, 1),
    Sketcher.Constraint("Vertical", 0),
    Sketcher.Constraint("Horizontal", 1),
    Sketcher.Constraint("Vertical", 2),
    Sketcher.Constraint("Horizontal", 3),
    Sketcher.Constraint("Vertical", 4),
    Sketcher.Constraint("Horizontal", 5),
    Sketcher.Constraint("Vertical", 6),
    Sketcher.Constraint("Horizontal", 7),
    Sketcher.Constraint("Horizontal", 8),
    Sketcher.Constraint("Vertical", 9),
    Sketcher.Constraint("Horizontal", 10),
    Sketcher.Constraint("Vertical", 11),
    Sketcher.Constraint("Vertical", 4, 2, 8, 2),
    Sketcher.Constraint("Equal", 7, 0),
    Sketcher.Constraint("Equal", 10, 9),
    Sketcher.Constraint("DistanceX", 1, 2, 1, 1, Q("2 mm")),
    Sketcher.Constraint("DistanceX", 7, 1, 7, 2, Q("5 mm")),
    Sketcher.Constraint("DistanceX", 8, 2, 8, 1, Q("4 mm")),
    Sketcher.Constraint("DistanceX", 3, 2, 3, 1, Q("2.5 mm")),
    Sketcher.Constraint("DistanceY", 2, 1, 2, 2, Q("0.499027 mm")),
    Sketcher.Constraint("DistanceY", 4, 1, 4, 2, Q("2.493325 mm")),
    Sketcher.Constraint("DistanceY", -1, 1, 4, 2, Q("45.499489 mm")),
    Sketcher.Constraint("DistanceY", 8, 2, 3, 2, Q("5.02995 mm")),
    Sketcher.Constraint("DistanceX", 0, 2, -1, 1, Q("55.787673 mm")),
])
sketch6.setExpression("Constraints[27]", "Params.sketch6_width")
sketch6.setExpression("Constraints[28]", "Params.sketch6_width2")
sketch6.setExpression("Constraints[29]", "Params.sketch6_width3")
sketch6.setExpression("Constraints[30]", "Params.sketch6_width4")
pad5 = body5.newObject("PartDesign::Pad", "Pad004")
pad5.Profile = sketch6
pad5.setExpression("Length", "Params.pad5_length")
pad5.Reversed = True
body6 = doc.addObject("PartDesign::Body", "Body005")

# Sketch on YZ plane
sketch7 = body6.newObject("Sketcher::SketchObject", "Sketch006")
sketch7.AttachmentSupport = (doc.getObject("YZ_Plane005"), [""])
sketch7.MapMode = "FlatFace"
sketch7.AttachmentOffset = App.Placement(App.Vector(0, 0, -84), App.Rotation())
sketch7.addGeometry([
    Part.LineSegment(App.Vector(-61, -34, 0), App.Vector(-61, 46, 0)),  # 0
    Part.LineSegment(App.Vector(-61, 46, 0), App.Vector(39, 46, 0)),  # 1
    Part.LineSegment(App.Vector(39, 46, 0), App.Vector(39, -34, 0)),  # 2
    Part.LineSegment(App.Vector(39, -34, 0), App.Vector(31, -34, 0)),  # 3
    Part.LineSegment(App.Vector(31, -34, 0), App.Vector(31, 38, 0)),  # 4
    Part.LineSegment(App.Vector(31, 38, 0), App.Vector(-53, 38, 0)),  # 5
    Part.LineSegment(App.Vector(-53, 38, 0), App.Vector(-53, -34, 0)),  # 6
    Part.LineSegment(App.Vector(-53, -34, 0), App.Vector(-61, -34, 0)),  # 7
], False)
sketch7.addConstraint([
    Sketcher.Constraint("Coincident", 0, 2, 1, 1),
    Sketcher.Constraint("Coincident", 1, 2, 2, 1),
    Sketcher.Constraint("Coincident", 2, 2, 3, 1),
    Sketcher.Constraint("Coincident", 3, 2, 4, 1),
    Sketcher.Constraint("Coincident", 4, 2, 5, 1),
    Sketcher.Constraint("Coincident", 5, 2, 6, 1),
    Sketcher.Constraint("Coincident", 6, 2, 7, 1),
    Sketcher.Constraint("Coincident", 7, 2, 0, 1),
    Sketcher.Constraint("Vertical", 0),
    Sketcher.Constraint("Horizontal", 1),
    Sketcher.Constraint("Vertical", 2),
    Sketcher.Constraint("Horizontal", 3),
    Sketcher.Constraint("Vertical", 4),
    Sketcher.Constraint("Horizontal", 5),
    Sketcher.Constraint("Vertical", 6),
    Sketcher.Constraint("Horizontal", 7),
    Sketcher.Constraint("Horizontal", 3, 2, 6, 2),
    Sketcher.Constraint("Equal", 3, 7),
    Sketcher.Constraint("DistanceX", 1, 1, 1, 2, Q("100 mm")),
    Sketcher.Constraint("DistanceX", 3, 2, 3, 1, Q("8 mm")),
    Sketcher.Constraint("DistanceY", 0, 1, 0, 2, Q("80 mm")),
    Sketcher.Constraint("DistanceY", 4, 1, 4, 2, Q("72 mm")),
    Sketcher.Constraint("DistanceX", 0, 2, -1, 1, Q("60.787673 mm")),
    Sketcher.Constraint("DistanceY", -1, 1, 0, 2, Q("45.507136 mm")),
])
sketch7.setExpression("Constraints[18]", "Params.sketch7_width")
sketch7.setExpression("Constraints[19]", "Params.sketch7_width2")
sketch7.setExpression("Constraints[20]", "Params.sketch7_height")
sketch7.setExpression("Constraints[21]", "Params.sketch7_height2")
pad6 = body6.newObject("PartDesign::Pad", "Pad005")
pad6.Profile = sketch7
pad6.setExpression("Length", "Params.pad6_length")
pad6.Reversed = True
body7 = doc.addObject("PartDesign::Body", "Body006")
body7.AllowCompound = True

# Sketch on XY plane
sketch8 = body7.newObject("Sketcher::SketchObject", "Sketch007")
sketch8.AttachmentSupport = (doc.getObject("XY_Plane006"), [""])
sketch8.MapMode = "FlatFace"
sketch8.AttachmentOffset = App.Placement(App.Vector(0, 0, 37.507136), App.Rotation())
sketch8.addGeometry([
    Part.Circle(App.Vector(-80, -58.2, 0), App.Vector(0, 0, 1), 0.5),
    Part.Circle(App.Vector(-4, -58.2, 0), App.Vector(0, 0, 1), 0.5),
    Part.Circle(App.Vector(-3.4, 36.8, 0), App.Vector(0, 0, 1), 0.5),
    Part.Circle(App.Vector(-80, 37, 0), App.Vector(0, 0, 1), 0.5),
], False)
sketch8.addConstraint([
    Sketcher.Constraint("Equal", 0, 1),
    Sketcher.Constraint("Equal", 1, 2),
    Sketcher.Constraint("Equal", 2, 3),
    Sketcher.Constraint("Horizontal", 0, 3, 1, 3),
    Sketcher.Constraint("Vertical", 0, 3, 3, 3),
    Sketcher.Constraint("Diameter", 0, Q("1 mm")),
    Sketcher.Constraint("DistanceX", 0, 3, -1, 1, Q("80 mm")),
    Sketcher.Constraint("DistanceX", 1, 3, -1, 1, Q("4 mm")),
    Sketcher.Constraint("DistanceX", 2, 3, -1, 1, Q("3.4 mm")),
    Sketcher.Constraint("DistanceY", -1, 1, 2, 3, Q("36.825541 mm")),
    Sketcher.Constraint("DistanceY", 0, 3, 3, 3, Q("95.17986 mm")),
    Sketcher.Constraint("DistanceY", 0, 3, -1, 1, Q("58.212683 mm")),
])
sketch8.setExpression("Constraints[5]", "Params.sketch8_diameter")
pad7 = body7.newObject("PartDesign::Pad", "Pad006")
pad7.Profile = sketch8
pad7.setExpression("Length", "Params.pad7_length")
doc.recompute()

body8 = doc.addObject("PartDesign::Body", "Body007")
body8.BaseFeature = body7
boolean = body2.newObject("PartDesign::Boolean", "Boolean")
boolean.Type = "Cut"
boolean.addObjects([body8])
doc.recompute()

body9 = doc.addObject("PartDesign::Body", "Body008")
body9.BaseFeature = body7
boolean2 = body3.newObject("PartDesign::Boolean", "Boolean001")
boolean2.Type = "Cut"
boolean2.addObjects([body9])
doc.recompute()

body10 = doc.addObject("PartDesign::Body", "Body009")
body10.BaseFeature = body7
boolean3 = body4.newObject("PartDesign::Boolean", "Boolean002")
boolean3.Type = "Cut"
boolean3.addObjects([body10])
doc.recompute()

boolean4 = body5.newObject("PartDesign::Boolean", "Boolean003")
boolean4.Type = "Cut"
boolean4.addObjects([body7])

doc.recompute()
